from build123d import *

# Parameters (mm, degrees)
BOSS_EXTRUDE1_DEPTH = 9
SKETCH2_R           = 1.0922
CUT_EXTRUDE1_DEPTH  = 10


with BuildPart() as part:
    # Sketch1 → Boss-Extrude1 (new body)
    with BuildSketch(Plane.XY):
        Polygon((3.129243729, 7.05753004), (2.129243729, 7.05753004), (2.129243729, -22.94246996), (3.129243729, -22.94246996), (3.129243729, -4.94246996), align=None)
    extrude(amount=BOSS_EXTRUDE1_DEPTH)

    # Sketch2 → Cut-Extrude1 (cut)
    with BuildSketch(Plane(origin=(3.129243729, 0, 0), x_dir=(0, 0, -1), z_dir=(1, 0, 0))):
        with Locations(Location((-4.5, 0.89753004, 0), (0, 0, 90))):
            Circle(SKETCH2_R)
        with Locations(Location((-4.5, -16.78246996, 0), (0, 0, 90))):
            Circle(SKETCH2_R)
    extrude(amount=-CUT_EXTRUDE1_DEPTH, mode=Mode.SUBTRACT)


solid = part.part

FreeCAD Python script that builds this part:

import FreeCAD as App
import Part
import Sketcher


def add_polygon(sketch, points):
    """Adds a closed chain of lines whose ends are joined by coincident constraints."""
    first, n = sketch.GeometryCount, len(points)
    for a, b in zip(points, points[1:] + points[:1]):
        sketch.addGeometry(Part.LineSegment(App.Vector(*a, 0), App.Vector(*b, 0)), False)
    for i in range(n):
        sketch.addConstraint(Sketcher.Constraint("Coincident", first + i, 2, first + (i + 1) % n, 1))

doc = App.newDocument("Part")
params = doc.addObject("Spreadsheet::Sheet", "Params")
for row, (alias, value) in enumerate([
    ("sketch1_width", "1 mm"),
    ("sketch1_height", "30 mm"),
    ("pad1_length", "9 mm"),
    ("pocket1_length", "10 mm"),
], start=1):
    params.set(f"A{row}", alias)
    params.set(f"B{row}", "=" + value)
    params.setAlias(f"B{row}", alias)

body = doc.addObject("PartDesign::Body", "Body")

sketch1 = doc.addObject("Sketcher::SketchObject", "Sketch")
body.addObject(sketch1)
sketch1.AttachmentSupport = (doc.XY_Plane, [""])
sketch1.MapMode = "FlatFace"
add_polygon(sketch1, [(3.1, 7.1), (2.1, 7.1), (2.1, -22.9), (3.1, -22.9)])
sketch1.addConstraint(Sketcher.Constraint("Horizontal", 0))
sketch1.addConstraint(Sketcher.Constraint("Vertical", 1))
sketch1.addConstraint(Sketcher.Constraint("Horizontal", 2))
sketch1.addConstraint(Sketcher.Constraint("Vertical", 3))
sketch1.addConstraint(Sketcher.Constraint("DistanceX", 0, 2, 0, 1, 1.0))
sketch1.addConstraint(Sketcher.Constraint("DistanceY", 1, 2, 1, 1, 30.0))
sketch1.addConstraint(Sketcher.Constraint("DistanceY", -1, 1, 0, 2, 7.05753))
sketch1.addConstraint(Sketcher.Constraint("DistanceX", -1, 1, 0, 2, 2.129244))
sketch1.setExpression("Constraints[8]", "Params.sketch1_width")
sketch1.setExpression("Constraints[9]", "Params.sketch1_height")
pad1 = doc.addObject("PartDesign::Pad", "Pad")
body.addObject(pad1)
pad1.Profile = sketch1
pad1.setExpression("Length", "Params.pad1_length")

sketch2 = doc.addObject("Sketcher::SketchObject", "Sketch001")
body.addObject(sketch2)
sketch2.AttachmentSupport = (doc.YZ_Plane, [""])
sketch2.MapMode = "FlatFace"
sketch2.AttachmentOffset = App.Placement(App.Vector(0, 0, 3.129244), App.Rotation())
sketch2.addGeometry(Part.Circle(App.Vector(0.9, 4.5, 0), App.Vector(0, 0, 1), 1.1), False)
sketch2.addGeometry(Part.Circle(App.Vector(-16.8, 4.5, 0), App.Vector(0, 0, 1), 1.1), False)
sketch2.addConstraint(Sketcher.Constraint("Equal", 0, 1))
sketch2.addConstraint(Sketcher.Constraint("Horizontal", 0, 3, 1, 3))
sketch2.addConstraint(Sketcher.Constraint("Diameter", 0, 2.1844))
sketch2.addConstraint(Sketcher.Constraint("DistanceY", -1, 1, 0, 3, 4.5))
sketch2.addConstraint(Sketcher.Constraint("DistanceX", 1, 3, 0, 3, 17.68))
sketch2.addConstraint(Sketcher.Constraint("DistanceX", -1, 1, 0, 3, 0.89753))
pocket1 = doc.addObject("PartDesign::Pocket", "Pocket")
body.addObject(pocket1)
pocket1.Profile = sketch2
pocket1.setExpression("Length", "Params.pocket1_length")

doc.recompute()
